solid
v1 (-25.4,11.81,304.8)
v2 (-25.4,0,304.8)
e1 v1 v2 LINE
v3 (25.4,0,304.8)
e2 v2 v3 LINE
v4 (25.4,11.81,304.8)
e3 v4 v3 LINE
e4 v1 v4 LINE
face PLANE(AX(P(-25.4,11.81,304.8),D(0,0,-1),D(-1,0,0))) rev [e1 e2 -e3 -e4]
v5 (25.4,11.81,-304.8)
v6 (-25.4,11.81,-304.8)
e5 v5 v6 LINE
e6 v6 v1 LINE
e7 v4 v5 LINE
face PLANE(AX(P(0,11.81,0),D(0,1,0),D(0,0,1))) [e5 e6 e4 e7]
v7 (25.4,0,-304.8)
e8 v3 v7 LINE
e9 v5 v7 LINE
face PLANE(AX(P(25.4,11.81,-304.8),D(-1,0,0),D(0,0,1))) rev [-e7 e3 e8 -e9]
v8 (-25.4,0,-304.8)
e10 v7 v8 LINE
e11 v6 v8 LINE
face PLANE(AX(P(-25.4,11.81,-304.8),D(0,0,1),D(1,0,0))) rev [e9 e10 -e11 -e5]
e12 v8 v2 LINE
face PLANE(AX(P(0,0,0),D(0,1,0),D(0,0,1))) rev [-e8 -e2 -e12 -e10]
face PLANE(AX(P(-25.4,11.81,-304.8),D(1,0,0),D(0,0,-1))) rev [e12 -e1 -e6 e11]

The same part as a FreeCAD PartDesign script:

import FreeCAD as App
import Part
import Sketcher

V = App.Vector
Q = App.Units.Quantity

doc = App.newDocument("Part")
params = doc.addObject("Spreadsheet::Sheet", "Params")
for row, (alias, value) in enumerate([
    ("sketch1_width", "2 in"),
    ("sketch1_height", "24 in"),
    ("pad1_length", "11.81 mm"),
], start=1):
    params.set(f"A{row}", alias)
    params.set(f"B{row}", "=" + value)
    params.setAlias(f"B{row}", alias)

body = doc.addObject("PartDesign::Body", "Body")

sketch1 = body.newObject("Sketcher::SketchObject", "Sketch")
sketch1.AttachmentSupport = (doc.getObject("XZ_Plane"), [""])
sketch1.MapMode = "FlatFace"
sketch1.addGeometry(Part.LineSegment(V(-25, -305, 0), V(-25, 305, 0)), False)
sketch1.addGeometry(Part.LineSegment(V(-25, 305, 0), V(25, 305, 0)), False)
sketch1.addGeometry(Part.LineSegment(V(25, 305, 0), V(25, -305, 0)), False)
sketch1.addGeometry(Part.LineSegment(V(25, -305, 0), V(-25, -305, 0)), False)
sketch1.addConstraint(Sketcher.Constraint("Coincident", 0, 2, 1, 1))
sketch1.addConstraint(Sketcher.Constraint("Coincident", 1, 2, 2, 1))
sketch1.addConstraint(Sketcher.Constraint("Coincident", 2, 2, 3, 1))
sketch1.addConstraint(Sketcher.Constraint("Coincident", 3, 2, 0, 1))
sketch1.addConstraint(Sketcher.Constraint("Vertical", 0))
sketch1.addConstraint(Sketcher.Constraint("Horizontal", 1))
sketch1.addConstraint(Sketcher.Constraint("Vertical", 2))
sketch1.addConstraint(Sketcher.Constraint("Horizontal", 3))
sketch1.addConstraint(Sketcher.Constraint("Symmetric", 0, 2, 2, 2, -1, 1))
sketch1.addConstraint(Sketcher.Constraint("DistanceX", 1, 1, 1, 2, Q("2 in")))
sketch1.addConstraint(Sketcher.Constraint("DistanceY", 0, 1, 0, 2, Q("24 in")))
sketch1.setExpression("Constraints[9]", "Params.sketch1_width")
sketch1.setExpression("Constraints[10]", "Params.sketch1_height")
pad1 = body.newObject("PartDesign::Pad", "Pad")
pad1.Profile = sketch1
pad1.setExpression("Length", "Params.pad1_length")
pad1.Reversed = True

doc.recompute()
